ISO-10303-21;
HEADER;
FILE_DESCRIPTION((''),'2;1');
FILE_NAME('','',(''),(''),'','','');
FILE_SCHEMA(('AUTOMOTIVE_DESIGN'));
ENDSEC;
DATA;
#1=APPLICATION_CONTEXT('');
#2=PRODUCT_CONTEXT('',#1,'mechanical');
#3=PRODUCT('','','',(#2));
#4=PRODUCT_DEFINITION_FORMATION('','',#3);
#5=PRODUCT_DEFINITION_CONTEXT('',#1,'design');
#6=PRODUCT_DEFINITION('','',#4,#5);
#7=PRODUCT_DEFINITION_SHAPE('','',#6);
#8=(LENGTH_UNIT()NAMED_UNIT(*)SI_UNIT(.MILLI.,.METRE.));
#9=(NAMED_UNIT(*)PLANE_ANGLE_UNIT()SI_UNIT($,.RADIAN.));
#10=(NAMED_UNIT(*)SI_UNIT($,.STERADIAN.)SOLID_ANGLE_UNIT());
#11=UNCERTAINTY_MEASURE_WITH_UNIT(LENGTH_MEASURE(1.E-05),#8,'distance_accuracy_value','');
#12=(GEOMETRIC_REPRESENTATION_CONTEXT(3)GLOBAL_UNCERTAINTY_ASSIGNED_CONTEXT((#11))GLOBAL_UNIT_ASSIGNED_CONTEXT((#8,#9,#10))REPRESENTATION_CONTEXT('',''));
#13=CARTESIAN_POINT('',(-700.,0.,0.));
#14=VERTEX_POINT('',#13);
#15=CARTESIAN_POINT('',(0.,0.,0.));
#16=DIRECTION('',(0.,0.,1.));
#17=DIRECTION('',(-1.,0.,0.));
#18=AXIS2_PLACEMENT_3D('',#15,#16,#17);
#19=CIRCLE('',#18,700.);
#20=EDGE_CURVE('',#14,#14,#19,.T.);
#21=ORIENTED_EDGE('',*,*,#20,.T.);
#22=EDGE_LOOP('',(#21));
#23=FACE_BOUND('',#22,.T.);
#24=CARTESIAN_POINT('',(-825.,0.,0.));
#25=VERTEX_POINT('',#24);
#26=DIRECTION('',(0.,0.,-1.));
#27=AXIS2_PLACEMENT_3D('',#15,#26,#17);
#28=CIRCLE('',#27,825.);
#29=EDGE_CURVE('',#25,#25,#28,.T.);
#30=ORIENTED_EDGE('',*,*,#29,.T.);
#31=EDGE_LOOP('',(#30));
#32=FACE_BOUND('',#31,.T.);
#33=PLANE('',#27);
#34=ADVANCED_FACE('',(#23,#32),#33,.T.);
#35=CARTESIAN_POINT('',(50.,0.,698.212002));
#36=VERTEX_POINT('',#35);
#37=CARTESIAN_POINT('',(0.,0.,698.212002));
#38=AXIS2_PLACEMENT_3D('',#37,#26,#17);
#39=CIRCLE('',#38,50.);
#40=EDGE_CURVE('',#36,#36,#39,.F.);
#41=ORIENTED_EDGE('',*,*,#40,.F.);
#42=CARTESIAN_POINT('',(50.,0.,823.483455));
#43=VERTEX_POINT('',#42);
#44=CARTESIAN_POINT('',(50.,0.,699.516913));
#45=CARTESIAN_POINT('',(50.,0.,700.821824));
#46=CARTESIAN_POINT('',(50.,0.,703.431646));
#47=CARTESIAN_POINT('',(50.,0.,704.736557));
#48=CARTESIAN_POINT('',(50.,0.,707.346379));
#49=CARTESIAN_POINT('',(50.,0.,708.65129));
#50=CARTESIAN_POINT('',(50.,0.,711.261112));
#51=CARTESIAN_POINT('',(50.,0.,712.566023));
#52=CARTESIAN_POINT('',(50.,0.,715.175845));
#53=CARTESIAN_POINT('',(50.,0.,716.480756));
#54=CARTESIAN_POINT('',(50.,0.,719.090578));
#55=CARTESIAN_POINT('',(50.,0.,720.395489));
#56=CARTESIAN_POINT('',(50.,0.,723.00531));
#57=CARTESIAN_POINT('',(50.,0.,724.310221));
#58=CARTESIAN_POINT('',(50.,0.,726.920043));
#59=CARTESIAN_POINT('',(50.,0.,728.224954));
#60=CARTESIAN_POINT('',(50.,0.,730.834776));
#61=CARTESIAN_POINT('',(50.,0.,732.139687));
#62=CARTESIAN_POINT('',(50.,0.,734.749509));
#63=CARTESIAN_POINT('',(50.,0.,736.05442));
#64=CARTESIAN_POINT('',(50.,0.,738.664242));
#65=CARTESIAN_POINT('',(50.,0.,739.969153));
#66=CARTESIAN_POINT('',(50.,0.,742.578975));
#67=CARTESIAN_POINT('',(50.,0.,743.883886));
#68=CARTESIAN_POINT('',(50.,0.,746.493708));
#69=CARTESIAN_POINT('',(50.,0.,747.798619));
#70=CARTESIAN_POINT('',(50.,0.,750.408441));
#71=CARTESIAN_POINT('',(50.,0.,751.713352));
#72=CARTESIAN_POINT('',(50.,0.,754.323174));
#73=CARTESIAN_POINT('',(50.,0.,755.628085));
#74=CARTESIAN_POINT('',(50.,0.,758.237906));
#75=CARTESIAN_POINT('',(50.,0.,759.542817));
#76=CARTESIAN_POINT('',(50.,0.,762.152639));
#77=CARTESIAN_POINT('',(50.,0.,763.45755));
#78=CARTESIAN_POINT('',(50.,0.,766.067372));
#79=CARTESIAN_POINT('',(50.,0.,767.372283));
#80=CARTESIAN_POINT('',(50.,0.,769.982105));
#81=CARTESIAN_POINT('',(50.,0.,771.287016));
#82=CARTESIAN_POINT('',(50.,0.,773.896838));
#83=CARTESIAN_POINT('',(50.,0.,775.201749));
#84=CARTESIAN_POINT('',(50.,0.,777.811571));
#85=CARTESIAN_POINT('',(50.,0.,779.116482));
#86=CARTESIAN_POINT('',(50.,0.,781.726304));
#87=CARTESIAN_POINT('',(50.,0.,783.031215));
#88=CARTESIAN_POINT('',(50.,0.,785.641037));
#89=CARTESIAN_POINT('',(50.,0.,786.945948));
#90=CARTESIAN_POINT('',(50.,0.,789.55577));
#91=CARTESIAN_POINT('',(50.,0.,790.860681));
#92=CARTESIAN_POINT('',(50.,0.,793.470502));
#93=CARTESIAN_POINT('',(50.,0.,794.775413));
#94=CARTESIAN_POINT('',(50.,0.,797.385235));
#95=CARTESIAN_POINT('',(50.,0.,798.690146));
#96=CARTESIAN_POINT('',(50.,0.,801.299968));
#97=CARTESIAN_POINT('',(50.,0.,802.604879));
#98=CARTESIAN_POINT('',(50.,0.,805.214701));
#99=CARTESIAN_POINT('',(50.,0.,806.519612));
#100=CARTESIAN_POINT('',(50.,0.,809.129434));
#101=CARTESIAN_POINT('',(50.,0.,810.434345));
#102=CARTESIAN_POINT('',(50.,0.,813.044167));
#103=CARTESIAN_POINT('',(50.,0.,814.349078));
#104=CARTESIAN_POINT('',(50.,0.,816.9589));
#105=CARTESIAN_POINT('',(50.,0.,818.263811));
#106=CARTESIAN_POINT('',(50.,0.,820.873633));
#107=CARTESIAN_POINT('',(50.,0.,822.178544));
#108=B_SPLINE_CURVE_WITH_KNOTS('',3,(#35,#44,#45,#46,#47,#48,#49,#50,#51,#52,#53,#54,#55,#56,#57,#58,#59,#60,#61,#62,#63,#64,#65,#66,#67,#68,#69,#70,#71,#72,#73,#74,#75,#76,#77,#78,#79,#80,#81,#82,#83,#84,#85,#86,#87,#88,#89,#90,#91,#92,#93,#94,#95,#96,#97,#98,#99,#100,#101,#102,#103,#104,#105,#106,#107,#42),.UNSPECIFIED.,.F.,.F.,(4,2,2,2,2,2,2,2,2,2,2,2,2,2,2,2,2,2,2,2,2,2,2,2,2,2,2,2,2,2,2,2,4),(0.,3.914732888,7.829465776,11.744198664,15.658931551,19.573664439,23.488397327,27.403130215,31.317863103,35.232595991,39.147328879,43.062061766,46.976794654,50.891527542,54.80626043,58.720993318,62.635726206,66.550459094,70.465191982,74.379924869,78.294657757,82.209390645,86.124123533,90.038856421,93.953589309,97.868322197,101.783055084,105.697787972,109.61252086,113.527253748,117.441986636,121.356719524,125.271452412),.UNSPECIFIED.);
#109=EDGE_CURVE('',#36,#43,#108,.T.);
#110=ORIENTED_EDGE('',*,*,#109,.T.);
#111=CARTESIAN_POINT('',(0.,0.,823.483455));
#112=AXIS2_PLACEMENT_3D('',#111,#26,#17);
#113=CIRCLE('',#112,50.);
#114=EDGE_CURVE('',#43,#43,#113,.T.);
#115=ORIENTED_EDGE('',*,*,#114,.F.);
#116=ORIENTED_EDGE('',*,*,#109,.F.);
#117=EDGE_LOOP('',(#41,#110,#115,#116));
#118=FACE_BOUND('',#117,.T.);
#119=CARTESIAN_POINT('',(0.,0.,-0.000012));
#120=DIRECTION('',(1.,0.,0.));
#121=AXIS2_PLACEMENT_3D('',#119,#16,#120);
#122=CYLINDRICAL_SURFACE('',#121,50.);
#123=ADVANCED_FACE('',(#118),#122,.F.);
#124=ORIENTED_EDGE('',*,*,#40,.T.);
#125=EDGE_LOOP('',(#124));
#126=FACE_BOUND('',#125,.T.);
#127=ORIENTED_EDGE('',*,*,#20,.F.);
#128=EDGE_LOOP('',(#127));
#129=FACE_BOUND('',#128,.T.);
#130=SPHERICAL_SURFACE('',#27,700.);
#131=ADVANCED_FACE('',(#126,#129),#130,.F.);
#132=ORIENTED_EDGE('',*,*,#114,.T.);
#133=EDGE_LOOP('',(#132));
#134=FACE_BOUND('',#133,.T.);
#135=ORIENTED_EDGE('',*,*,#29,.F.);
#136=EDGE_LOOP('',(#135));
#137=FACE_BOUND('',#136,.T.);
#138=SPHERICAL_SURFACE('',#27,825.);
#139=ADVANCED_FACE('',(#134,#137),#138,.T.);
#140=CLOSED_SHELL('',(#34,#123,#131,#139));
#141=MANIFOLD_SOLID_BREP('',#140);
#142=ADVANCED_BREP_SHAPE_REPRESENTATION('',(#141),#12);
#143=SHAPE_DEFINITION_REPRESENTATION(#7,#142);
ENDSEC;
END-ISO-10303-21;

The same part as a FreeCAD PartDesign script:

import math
import FreeCAD as App
import Part
import Sketcher

V = App.Vector
Q = App.Units.Quantity

doc = App.newDocument("Part")
body = doc.addObject("PartDesign::Body", "Body")

# Sketch on XY plane
sketch1 = body.newObject("Sketcher::SketchObject", "Sketch")
sketch1.AttachmentSupport = (doc.getObject("XY_Plane"), [""])
sketch1.MapMode = "FlatFace"
sketch1.addGeometry(Part.LineSegment(V(0, 825, 0), V(0, 700, 0)), False)
sketch1.addGeometry(Part.ArcOfCircle(Part.Circle(V(0, 0, 0), V(0, 0, 1), 700), math.radians(-90), math.radians(90)), False)
sketch1.addGeometry(Part.LineSegment(V(0, -700, 0), V(0, -825, 0)), False)
sketch1.addGeometry(Part.ArcOfCircle(Part.Circle(V(0, 0, 0), V(0, 0, 1), 825), math.radians(-90), math.radians(90)), False)
sketch1.addConstraint(Sketcher.Constraint("Coincident", 0, 2, 1, 2))
sketch1.addConstraint(Sketcher.Constraint("Coincident", 1, 1, 2, 1))
sketch1.addConstraint(Sketcher.Constraint("Coincident", 2, 2, 3, 1))
sketch1.addConstraint(Sketcher.Constraint("Coincident", 3, 2, 0, 1))
sketch1.addConstraint(Sketcher.Constraint("Vertical", 0))
sketch1.addConstraint(Sketcher.Constraint("Vertical", 2))
sketch1.addConstraint(Sketcher.Constraint("Coincident", 1, 3, -1, 1))
sketch1.addConstraint(Sketcher.Constraint("Coincident", 3, 3, -1, 1))
sketch1.addConstraint(Sketcher.Constraint("PointOnObject", 0, 2, -2))
sketch1.addConstraint(Sketcher.Constraint("PointOnObject", 2, 2, -2))
sketch1.addConstraint(Sketcher.Constraint("Radius", 1, Q("700 mm")))
sketch1.addConstraint(Sketcher.Constraint("Radius", 3, Q("825 mm")))
revolution = body.newObject("PartDesign::Revolution", "Revolution")
revolution.Profile = sketch1
revolution.ReferenceAxis = (sketch1, ["V_Axis"])
revolution.Angle = 180
revolution.Reversed = True

# Sketch on XY plane
sketch2 = body.newObject("Sketcher::SketchObject", "Sketch001")
sketch2.AttachmentSupport = (doc.getObject("XY_Plane"), [""])
sketch2.MapMode = "FlatFace"
sketch2.addGeometry(Part.Circle(V(0, 0, 0), V(0, 0, 1), 50), False)
sketch2.addConstraint(Sketcher.Constraint("Coincident", 0, 3, -1, 1))
sketch2.addConstraint(Sketcher.Constraint("Diameter", 0, Q("100 mm")))
pocket1 = body.newObject("PartDesign::Pocket", "Pocket")
pocket1.Profile = sketch2
pocket1.Type = "ThroughAll"
pocket1.Midplane = True

doc.recompute()
